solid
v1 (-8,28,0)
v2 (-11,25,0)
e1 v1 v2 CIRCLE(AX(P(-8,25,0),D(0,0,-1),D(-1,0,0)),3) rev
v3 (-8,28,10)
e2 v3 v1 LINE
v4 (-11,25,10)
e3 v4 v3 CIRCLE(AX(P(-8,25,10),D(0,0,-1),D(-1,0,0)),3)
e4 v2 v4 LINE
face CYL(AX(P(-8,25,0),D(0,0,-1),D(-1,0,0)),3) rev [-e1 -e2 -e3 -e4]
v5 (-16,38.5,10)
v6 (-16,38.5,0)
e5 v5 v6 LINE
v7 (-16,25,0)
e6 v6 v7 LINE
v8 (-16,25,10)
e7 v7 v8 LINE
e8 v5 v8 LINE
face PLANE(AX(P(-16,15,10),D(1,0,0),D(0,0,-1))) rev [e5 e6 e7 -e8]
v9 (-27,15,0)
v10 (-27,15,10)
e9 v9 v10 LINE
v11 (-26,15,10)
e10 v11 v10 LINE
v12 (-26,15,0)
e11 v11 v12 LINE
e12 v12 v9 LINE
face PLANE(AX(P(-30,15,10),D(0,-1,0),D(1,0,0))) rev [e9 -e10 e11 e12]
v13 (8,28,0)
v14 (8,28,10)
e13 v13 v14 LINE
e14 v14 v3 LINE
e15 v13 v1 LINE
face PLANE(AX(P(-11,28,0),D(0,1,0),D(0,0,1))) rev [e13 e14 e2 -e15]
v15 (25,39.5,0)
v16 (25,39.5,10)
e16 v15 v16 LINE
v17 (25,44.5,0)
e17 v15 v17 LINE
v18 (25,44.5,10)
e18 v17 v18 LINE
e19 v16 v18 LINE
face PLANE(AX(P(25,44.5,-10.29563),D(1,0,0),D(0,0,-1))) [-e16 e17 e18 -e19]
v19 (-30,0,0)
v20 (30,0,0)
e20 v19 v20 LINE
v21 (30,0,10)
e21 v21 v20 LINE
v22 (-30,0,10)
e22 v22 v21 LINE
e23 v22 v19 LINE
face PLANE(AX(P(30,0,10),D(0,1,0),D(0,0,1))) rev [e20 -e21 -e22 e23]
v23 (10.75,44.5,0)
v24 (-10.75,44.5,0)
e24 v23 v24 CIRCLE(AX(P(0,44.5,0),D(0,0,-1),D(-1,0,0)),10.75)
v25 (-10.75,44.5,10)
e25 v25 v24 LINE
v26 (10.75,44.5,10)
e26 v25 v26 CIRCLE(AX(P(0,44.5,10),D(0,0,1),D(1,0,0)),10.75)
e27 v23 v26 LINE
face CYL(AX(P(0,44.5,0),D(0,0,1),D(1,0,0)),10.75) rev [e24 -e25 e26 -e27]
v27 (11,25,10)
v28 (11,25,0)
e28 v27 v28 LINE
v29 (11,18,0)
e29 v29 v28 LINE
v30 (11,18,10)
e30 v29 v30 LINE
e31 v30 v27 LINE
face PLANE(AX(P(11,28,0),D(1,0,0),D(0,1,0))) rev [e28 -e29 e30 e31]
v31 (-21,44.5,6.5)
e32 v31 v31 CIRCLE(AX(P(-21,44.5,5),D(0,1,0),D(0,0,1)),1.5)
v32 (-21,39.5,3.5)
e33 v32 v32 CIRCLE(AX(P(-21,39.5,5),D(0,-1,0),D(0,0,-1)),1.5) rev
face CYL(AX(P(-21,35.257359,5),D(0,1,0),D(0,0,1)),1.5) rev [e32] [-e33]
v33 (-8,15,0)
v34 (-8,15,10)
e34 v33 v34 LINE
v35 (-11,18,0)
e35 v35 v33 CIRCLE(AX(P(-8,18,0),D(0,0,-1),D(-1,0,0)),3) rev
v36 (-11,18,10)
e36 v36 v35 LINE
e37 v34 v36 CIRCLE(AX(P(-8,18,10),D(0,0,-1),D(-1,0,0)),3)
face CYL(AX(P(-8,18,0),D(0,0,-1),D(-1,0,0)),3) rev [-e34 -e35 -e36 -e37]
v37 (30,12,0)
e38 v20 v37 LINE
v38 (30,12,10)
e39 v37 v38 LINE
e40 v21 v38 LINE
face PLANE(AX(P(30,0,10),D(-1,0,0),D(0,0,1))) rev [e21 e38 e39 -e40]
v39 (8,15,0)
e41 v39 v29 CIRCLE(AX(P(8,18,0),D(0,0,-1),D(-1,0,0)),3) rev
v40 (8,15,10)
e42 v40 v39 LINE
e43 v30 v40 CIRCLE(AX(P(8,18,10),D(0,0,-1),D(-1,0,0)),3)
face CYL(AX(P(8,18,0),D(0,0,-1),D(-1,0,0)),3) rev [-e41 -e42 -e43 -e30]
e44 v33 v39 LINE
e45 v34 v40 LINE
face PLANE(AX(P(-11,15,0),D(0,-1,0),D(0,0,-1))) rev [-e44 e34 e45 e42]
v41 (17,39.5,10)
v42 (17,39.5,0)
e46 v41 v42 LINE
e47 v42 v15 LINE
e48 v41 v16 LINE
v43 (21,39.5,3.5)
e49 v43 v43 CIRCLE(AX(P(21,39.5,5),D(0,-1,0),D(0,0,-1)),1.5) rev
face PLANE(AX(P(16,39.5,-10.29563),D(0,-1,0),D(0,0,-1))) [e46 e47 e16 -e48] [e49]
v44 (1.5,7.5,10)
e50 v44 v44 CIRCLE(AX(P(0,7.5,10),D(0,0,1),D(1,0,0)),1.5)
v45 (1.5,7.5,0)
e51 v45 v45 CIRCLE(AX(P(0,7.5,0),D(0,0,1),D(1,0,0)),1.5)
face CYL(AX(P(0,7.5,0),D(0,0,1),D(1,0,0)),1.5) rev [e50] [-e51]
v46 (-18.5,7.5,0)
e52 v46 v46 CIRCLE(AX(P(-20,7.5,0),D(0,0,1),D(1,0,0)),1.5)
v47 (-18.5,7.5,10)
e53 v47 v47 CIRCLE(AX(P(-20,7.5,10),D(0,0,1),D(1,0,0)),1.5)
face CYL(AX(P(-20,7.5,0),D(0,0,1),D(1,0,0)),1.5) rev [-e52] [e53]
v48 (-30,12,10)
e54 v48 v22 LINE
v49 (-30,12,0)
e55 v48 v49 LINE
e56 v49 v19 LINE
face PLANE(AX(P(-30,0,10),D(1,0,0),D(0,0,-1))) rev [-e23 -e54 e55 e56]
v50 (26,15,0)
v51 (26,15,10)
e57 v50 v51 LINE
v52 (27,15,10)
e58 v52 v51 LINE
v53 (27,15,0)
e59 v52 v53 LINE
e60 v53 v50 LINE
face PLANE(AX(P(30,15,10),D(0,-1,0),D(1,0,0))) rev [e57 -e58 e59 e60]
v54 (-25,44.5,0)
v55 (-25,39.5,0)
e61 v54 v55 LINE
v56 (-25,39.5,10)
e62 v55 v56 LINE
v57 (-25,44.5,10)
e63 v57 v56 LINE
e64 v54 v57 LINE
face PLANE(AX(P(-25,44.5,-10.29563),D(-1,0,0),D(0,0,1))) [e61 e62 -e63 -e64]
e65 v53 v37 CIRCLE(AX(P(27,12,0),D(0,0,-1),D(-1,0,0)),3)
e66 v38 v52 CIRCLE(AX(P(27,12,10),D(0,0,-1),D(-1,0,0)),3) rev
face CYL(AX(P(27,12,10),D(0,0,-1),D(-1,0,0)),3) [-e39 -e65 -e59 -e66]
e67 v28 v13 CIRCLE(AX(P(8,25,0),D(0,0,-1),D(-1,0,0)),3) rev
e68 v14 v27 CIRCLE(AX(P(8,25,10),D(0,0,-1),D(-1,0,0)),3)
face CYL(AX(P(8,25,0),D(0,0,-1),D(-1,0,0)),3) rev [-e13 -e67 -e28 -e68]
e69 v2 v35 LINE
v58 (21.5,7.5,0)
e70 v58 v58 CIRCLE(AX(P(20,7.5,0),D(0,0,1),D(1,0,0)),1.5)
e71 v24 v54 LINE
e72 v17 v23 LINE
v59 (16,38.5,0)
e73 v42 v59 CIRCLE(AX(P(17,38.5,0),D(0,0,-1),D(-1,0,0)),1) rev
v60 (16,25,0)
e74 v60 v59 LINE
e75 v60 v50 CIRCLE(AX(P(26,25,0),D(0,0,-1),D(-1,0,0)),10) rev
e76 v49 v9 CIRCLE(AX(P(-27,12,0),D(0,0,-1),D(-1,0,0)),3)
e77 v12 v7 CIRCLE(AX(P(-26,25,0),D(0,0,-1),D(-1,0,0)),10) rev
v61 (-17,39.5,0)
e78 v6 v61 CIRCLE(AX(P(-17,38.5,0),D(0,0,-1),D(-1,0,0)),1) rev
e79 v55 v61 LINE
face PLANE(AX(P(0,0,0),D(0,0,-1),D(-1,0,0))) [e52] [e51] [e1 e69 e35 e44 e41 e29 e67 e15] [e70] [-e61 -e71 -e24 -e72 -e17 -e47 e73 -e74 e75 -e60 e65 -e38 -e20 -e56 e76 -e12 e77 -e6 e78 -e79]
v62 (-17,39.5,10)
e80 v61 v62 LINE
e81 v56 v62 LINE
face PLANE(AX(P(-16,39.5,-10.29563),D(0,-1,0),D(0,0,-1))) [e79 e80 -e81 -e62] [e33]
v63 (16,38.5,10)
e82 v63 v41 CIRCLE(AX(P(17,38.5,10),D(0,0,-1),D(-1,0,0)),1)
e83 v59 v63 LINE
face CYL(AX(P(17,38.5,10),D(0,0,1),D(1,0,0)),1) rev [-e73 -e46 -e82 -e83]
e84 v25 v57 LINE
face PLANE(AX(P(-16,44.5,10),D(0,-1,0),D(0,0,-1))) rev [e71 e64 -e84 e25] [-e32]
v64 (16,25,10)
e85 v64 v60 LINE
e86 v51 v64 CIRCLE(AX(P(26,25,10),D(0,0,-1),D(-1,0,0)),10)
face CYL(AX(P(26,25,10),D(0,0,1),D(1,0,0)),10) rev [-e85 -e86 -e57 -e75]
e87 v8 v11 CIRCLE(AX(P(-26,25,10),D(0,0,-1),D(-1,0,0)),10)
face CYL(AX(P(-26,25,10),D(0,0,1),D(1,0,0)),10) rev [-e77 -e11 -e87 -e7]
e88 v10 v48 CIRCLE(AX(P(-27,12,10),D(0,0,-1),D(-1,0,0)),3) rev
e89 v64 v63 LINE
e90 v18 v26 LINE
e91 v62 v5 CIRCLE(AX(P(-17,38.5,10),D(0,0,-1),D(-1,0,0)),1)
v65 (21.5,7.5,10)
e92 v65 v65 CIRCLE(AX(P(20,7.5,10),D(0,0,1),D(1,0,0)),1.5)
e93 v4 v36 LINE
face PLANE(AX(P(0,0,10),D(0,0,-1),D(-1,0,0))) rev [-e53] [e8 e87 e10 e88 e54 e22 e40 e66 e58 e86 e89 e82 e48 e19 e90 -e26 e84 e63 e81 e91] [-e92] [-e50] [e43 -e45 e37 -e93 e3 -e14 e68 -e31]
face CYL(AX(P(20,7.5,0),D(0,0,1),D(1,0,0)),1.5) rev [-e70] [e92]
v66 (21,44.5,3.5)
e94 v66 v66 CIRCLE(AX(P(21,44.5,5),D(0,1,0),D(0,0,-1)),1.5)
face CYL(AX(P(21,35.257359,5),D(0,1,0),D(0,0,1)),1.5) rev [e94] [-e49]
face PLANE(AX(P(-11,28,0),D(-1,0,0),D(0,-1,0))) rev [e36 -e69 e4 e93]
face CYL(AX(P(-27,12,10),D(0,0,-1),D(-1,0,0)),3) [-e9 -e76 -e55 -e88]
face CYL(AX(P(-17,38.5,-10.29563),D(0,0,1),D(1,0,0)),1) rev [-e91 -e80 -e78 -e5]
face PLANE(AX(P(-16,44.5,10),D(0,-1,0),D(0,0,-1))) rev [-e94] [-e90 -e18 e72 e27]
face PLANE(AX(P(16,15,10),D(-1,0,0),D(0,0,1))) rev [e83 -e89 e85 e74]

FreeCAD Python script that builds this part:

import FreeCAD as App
import Part
import Sketcher

V = App.Vector
Q = App.Units.Quantity


def edges_at(feature, points):
    """Names of the edges that pass closest to the given points."""
    edges = feature.Shape.Edges
    near = lambda p: min(range(len(edges)), key=lambda i: edges[i].distToShape(Part.Vertex(*p))[0])
    return sorted({f"Edge{near(p) + 1}" for p in points})


def add_polygon(sketch, points):
    """Adds a closed chain of lines whose ends are joined by coincident constraints."""
    first, n = sketch.GeometryCount, len(points)
    for a, b in zip(points, points[1:] + points[:1]):
        sketch.addGeometry(Part.LineSegment(App.Vector(*a, 0), App.Vector(*b, 0)), False)
    for i in range(n):
        sketch.addConstraint(Sketcher.Constraint("Coincident", first + i, 2, first + (i + 1) % n, 1))

doc = App.newDocument("Part")
body = doc.addObject("PartDesign::Body", "Body")

# Sketch on XY plane
sketch1 = doc.addObject("Sketcher::SketchObject", "Sketch")
body.addObject(sketch1)
sketch1.AttachmentSupport = (doc.XY_Plane, [""])
sketch1.MapMode = "FlatFace"
add_polygon(sketch1, [(-30, 0), (30, 0), (30, 15), (16, 15), (16, 44), (-16, 44), (-16, 15), (-30, 15)])  # lines 0-7
sketch1.addConstraint([
    Sketcher.Constraint("Horizontal", 0),
    Sketcher.Constraint("Vertical", 1),
    Sketcher.Constraint("Horizontal", 2),
    Sketcher.Constraint("Vertical", 3),
    Sketcher.Constraint("Horizontal", 4),
    Sketcher.Constraint("Vertical", 5),
    Sketcher.Constraint("Horizontal", 6),
    Sketcher.Constraint("Vertical", 7),
    Sketcher.Constraint("Symmetric", 0, 2, 7, 2, -1, 1),
    Sketcher.Constraint("Symmetric", 2, 2, 5, 2, -2),
    Sketcher.Constraint("DistanceX", 0, 1, 0, 2, Q("60 mm")),
    Sketcher.Constraint("DistanceX", 2, 2, 2, 1, Q("14 mm")),
    Sketcher.Constraint("DistanceY", 1, 1, 1, 2, Q("15 mm")),
    Sketcher.Constraint("DistanceY", 3, 1, 3, 2, Q("29.5 mm")),
])
pad1 = doc.addObject("PartDesign::Pad", "Pad")
body.addObject(pad1)
pad1.Profile = sketch1
pad1.Length = 10

# Sketch on XY plane
sketch2 = doc.addObject("Sketcher::SketchObject", "Sketch001")
body.addObject(sketch2)
sketch2.AttachmentSupport = (doc.XY_Plane, [""])
sketch2.MapMode = "FlatFace"
sketch2.AttachmentOffset = App.Placement(V(0, 0, 10), App.Rotation())
sketch2.addGeometry(Part.Circle(V(0, 44, 0), V(0, 0, 1), 11), False)
sketch2.addConstraint([
    Sketcher.Constraint("PointOnObject", 0, 3, -2),
    Sketcher.Constraint("Diameter", 0, Q("21.5 mm")),
    Sketcher.Constraint("DistanceY", -1, 1, 0, 3, Q("44.5 mm")),
])
pocket1 = doc.addObject("PartDesign::Pocket", "Pocket")
body.addObject(pocket1)
pocket1.Profile = sketch2
pocket1.Type = "ThroughAll"

# Sketch on XY plane
sketch3 = doc.addObject("Sketcher::SketchObject", "Sketch002")
body.addObject(sketch3)
sketch3.AttachmentSupport = (doc.XY_Plane, [""])
sketch3.MapMode = "FlatFace"
sketch3.AttachmentOffset = App.Placement(V(0, 0, 10), App.Rotation())
sketch3.addGeometry([
    Part.Circle(V(-20, 7.5, 0), V(0, 0, 1), 1.5),
    Part.Circle(V(0, 7.5, 0), V(0, 0, 1), 1.5),
    Part.Circle(V(20, 7.5, 0), V(0, 0, 1), 1.5),
], False)
sketch3.addConstraint([
    Sketcher.Constraint("Equal", 0, 1),
    Sketcher.Constraint("Equal", 1, 2),
    Sketcher.Constraint("Symmetric", 0, 3, 2, 3, -2),
    Sketcher.Constraint("PointOnObject", 1, 3, -2),
    Sketcher.Constraint("Horizontal", 0, 3, 1, 3),
    Sketcher.Constraint("Diameter", 0, Q("3 mm")),
    Sketcher.Constraint("DistanceX", 0, 3, -1, 1, Q("20 mm")),
    Sketcher.Constraint("DistanceY", -1, 1, 0, 3, Q("7.5 mm")),
])
pocket2 = doc.addObject("PartDesign::Pocket", "Pocket001")
body.addObject(pocket2)
pocket2.Profile = sketch3
pocket2.Type = "ThroughAll"
doc.recompute()

fillet = doc.addObject("PartDesign::Fillet", "Fillet")
body.addObject(fillet)
fillet.Base = (pocket2, edges_at(pocket2, [(-16, 15, 5), (16, 15, 5)]))
fillet.Radius = 10
doc.recompute()

fillet2 = doc.addObject("PartDesign::Fillet", "Fillet001")
body.addObject(fillet2)
fillet2.Base = (fillet, edges_at(fillet, [(-30, 15, 5), (30, 15, 5)]))
fillet2.Radius = 3

# Sketch on XY plane
sketch4 = doc.addObject("Sketcher::SketchObject", "Sketch003")
body.addObject(sketch4)
sketch4.AttachmentSupport = (doc.XY_Plane, [""])
sketch4.MapMode = "FlatFace"
sketch4.AttachmentOffset = App.Placement(V(0, 0, 10), App.Rotation())
add_polygon(sketch4, [(-11, 28), (-11, 15), (11, 15), (11, 28)])  # lines 0-3
sketch4.addConstraint([
    Sketcher.Constraint("Vertical", 0),
    Sketcher.Constraint("Horizontal", 1),
    Sketcher.Constraint("Vertical", 2),
    Sketcher.Constraint("Horizontal", 3),
    Sketcher.Constraint("DistanceX", 1, 1, 1, 2, Q("22 mm")),
    Sketcher.Constraint("DistanceY", 0, 2, 0, 1, Q("13 mm")),
    Sketcher.Constraint("DistanceX", 0, 2, -1, 1, Q("11 mm")),
    Sketcher.Constraint("DistanceY", -1, 1, 0, 2, Q("15 mm")),
])
pocket3 = doc.addObject("PartDesign::Pocket", "Pocket002")
body.addObject(pocket3)
pocket3.Profile = sketch4
pocket3.Type = "ThroughAll"
doc.recompute()

fillet3 = doc.addObject("PartDesign::Fillet", "Fillet002")
body.addObject(fillet3)
fillet3.Base = (pocket3, edges_at(pocket3, [
    (11, 28, 5),
    (11, 15, 5),
    (-11, 15, 5),
    (-11, 28, 5),
]))
fillet3.Radius = 3

# Sketch on XY plane
sketch5 = doc.addObject("Sketcher::SketchObject", "Sketch004")
body.addObject(sketch5)
sketch5.AttachmentSupport = (doc.XY_Plane, [""])
sketch5.MapMode = "FlatFace"
sketch5.AttachmentOffset = App.Placement(V(0, 0, 10), App.Rotation())
add_polygon(sketch5, [(16, 44), (16, 40), (25, 40), (25, 44)])  # lines 0-3
add_polygon(sketch5, [(-25, 44), (-25, 40), (-16, 40), (-16, 44)])  # lines 4-7
sketch5.addConstraint([
    Sketcher.Constraint("Vertical", 0),
    Sketcher.Constraint("Horizontal", 1),
    Sketcher.Constraint("Vertical", 2),
    Sketcher.Constraint("Horizontal", 3),
    Sketcher.Constraint("Vertical", 4),
    Sketcher.Constraint("Horizontal", 5),
    Sketcher.Constraint("Vertical", 6),
    Sketcher.Constraint("Horizontal", 7),
    Sketcher.Constraint("Symmetric", 1, 2, 4, 2, -2),
    Sketcher.Constraint("Symmetric", 3, 2, 6, 2, -2),
    Sketcher.Constraint("DistanceX", 1, 1, 1, 2, Q("9 mm")),
    Sketcher.Constraint("DistanceY", 0, 2, 0, 1, Q("5 mm")),
    Sketcher.Constraint("DistanceX", -1, 1, 0, 2, Q("16 mm")),
    Sketcher.Constraint("DistanceY", -1, 1, 0, 2, Q("39.5 mm")),
])
pad2 = doc.addObject("PartDesign::Pad", "Pad001")
body.addObject(pad2)
pad2.Profile = sketch5
pad2.Length = 10
pad2.Reversed = True
doc.recompute()

fillet4 = doc.addObject("PartDesign::Fillet", "Fillet003")
body.addObject(fillet4)
fillet4.Base = (pad2, edges_at(pad2, [(-16, 39.5, 5), (16, 39.5, 5)]))
fillet4.Radius = 1

# Sketch on XZ plane
sketch6 = doc.addObject("Sketcher::SketchObject", "Sketch005")
body.addObject(sketch6)
sketch6.AttachmentSupport = (doc.XZ_Plane, [""])
sketch6.MapMode = "FlatFace"
sketch6.AttachmentOffset = App.Placement(V(0, 0, -44.5), App.Rotation())
sketch6.addGeometry([
    Part.Circle(V(-21, 5, 0), V(0, 0, 1), 1.5),
    Part.Circle(V(21, 5, 0), V(0, 0, 1), 1.5),
], False)
sketch6.addConstraint([
    Sketcher.Constraint("Equal", 0, 1),
    Sketcher.Constraint("Symmetric", 0, 3, 1, 3, -2),
    Sketcher.Constraint("Diameter", 0, Q("3 mm")),
    Sketcher.Constraint("DistanceX", 0, 3, -1, 1, Q("21 mm")),
    Sketcher.Constraint("DistanceY", -1, 1, 0, 3, Q("5 mm")),
])
pocket4 = doc.addObject("PartDesign::Pocket", "Pocket003")
body.addObject(pocket4)
pocket4.Profile = sketch6
pocket4.Length = 5
pocket4.Reversed = True

doc.recompute()
